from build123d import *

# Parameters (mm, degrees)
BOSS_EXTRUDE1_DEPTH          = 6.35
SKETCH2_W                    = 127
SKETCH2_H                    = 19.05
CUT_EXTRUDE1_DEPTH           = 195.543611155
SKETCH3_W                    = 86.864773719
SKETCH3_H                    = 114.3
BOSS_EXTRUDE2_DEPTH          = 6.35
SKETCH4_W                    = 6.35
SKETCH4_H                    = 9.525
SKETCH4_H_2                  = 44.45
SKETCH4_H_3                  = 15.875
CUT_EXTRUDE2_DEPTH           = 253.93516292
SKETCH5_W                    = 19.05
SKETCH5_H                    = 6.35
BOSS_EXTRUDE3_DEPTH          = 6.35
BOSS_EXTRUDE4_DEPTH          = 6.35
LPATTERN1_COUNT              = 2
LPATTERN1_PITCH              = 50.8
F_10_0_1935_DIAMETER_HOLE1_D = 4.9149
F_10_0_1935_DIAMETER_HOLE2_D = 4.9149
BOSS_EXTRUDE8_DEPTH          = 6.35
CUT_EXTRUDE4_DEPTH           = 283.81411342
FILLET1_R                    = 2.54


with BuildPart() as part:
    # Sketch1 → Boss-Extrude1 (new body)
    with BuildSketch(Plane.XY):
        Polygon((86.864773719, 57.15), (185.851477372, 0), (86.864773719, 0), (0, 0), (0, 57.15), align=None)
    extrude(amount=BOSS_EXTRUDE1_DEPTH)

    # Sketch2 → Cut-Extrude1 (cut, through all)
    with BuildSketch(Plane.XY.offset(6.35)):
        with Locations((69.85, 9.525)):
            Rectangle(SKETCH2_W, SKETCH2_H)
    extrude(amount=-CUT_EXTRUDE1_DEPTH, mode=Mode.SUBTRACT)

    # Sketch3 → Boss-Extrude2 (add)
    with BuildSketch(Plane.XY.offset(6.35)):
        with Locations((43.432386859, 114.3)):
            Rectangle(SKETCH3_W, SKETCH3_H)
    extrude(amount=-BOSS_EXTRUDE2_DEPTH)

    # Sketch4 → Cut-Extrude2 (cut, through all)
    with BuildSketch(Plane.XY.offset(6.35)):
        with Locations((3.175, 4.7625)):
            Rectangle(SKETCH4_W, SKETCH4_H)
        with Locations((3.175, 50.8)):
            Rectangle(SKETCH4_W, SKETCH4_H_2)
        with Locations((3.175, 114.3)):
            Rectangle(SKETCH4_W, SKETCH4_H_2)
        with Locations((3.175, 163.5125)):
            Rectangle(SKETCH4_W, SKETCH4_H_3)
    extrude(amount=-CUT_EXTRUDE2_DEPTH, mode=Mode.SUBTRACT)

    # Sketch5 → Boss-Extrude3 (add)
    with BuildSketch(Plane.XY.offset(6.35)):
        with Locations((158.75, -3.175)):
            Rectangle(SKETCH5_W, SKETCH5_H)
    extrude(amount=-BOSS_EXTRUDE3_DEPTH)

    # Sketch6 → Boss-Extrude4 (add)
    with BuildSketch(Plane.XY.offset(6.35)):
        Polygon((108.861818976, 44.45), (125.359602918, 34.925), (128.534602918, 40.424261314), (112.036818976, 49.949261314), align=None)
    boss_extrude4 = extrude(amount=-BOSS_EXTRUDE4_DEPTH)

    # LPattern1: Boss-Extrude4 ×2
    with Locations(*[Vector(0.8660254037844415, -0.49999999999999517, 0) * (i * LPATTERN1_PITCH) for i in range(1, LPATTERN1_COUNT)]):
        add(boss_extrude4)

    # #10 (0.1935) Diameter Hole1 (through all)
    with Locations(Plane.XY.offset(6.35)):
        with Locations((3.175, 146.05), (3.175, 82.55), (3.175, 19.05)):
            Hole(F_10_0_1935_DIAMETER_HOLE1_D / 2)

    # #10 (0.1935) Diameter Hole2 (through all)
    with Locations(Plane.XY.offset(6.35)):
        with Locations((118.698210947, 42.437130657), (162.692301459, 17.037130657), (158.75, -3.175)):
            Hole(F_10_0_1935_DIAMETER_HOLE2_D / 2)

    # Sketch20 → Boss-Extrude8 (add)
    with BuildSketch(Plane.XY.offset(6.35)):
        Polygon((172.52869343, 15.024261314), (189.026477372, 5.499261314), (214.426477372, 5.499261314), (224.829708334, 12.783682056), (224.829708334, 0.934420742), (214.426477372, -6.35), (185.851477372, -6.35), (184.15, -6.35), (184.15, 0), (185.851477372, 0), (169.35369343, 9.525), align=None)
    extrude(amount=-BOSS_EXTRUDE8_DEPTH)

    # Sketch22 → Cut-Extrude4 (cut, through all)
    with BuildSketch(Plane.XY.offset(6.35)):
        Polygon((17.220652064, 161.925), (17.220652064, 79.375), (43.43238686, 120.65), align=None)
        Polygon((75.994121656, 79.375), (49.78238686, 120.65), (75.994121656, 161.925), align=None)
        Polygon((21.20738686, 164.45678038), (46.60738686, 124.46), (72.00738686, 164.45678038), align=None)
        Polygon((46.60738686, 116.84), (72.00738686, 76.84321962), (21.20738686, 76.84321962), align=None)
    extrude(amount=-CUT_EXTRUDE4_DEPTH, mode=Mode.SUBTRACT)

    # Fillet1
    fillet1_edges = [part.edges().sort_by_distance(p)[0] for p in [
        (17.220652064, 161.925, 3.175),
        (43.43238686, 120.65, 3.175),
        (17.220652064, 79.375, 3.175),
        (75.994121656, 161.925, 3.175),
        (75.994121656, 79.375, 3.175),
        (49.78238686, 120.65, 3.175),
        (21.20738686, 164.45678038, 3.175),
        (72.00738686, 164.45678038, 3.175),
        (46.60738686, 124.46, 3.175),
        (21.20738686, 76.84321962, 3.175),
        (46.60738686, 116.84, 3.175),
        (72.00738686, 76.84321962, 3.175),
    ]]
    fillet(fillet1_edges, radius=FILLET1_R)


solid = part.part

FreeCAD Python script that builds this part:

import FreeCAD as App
import Part
import Sketcher
Q = App.Units.Quantity


def edges_at(feature, points):
    """Names of the edges that pass closest to the given points."""
    edges = feature.Shape.Edges
    near = lambda p: min(range(len(edges)), key=lambda i: edges[i].distToShape(Part.Vertex(*p))[0])
    return sorted({f"Edge{near(p) + 1}" for p in points})


def add_polygon(sketch, points):
    """Adds a closed chain of lines whose ends are joined by coincident constraints."""
    first, n = sketch.GeometryCount, len(points)
    for a, b in zip(points, points[1:] + points[:1]):
        sketch.addGeometry(Part.LineSegment(App.Vector(*a, 0), App.Vector(*b, 0)), False)
    for i in range(n):
        sketch.addConstraint(Sketcher.Constraint("Coincident", first + i, 2, first + (i + 1) % n, 1))

doc = App.newDocument("Part")
params = doc.addObject("Spreadsheet::Sheet", "Params")
for row, (alias, value) in enumerate([
    ("sketch1_length", "4.5 in"),
    ("pad1_length", "0.25 in"),
    ("sketch2_width", "5 in"),
    ("sketch2_height", "0.75 in"),
    ("sketch3_height", "4.5 in"),
    ("pad2_length", "0.25 in"),
    ("sketch4_width", "0.25 in"),
    ("sketch4_height", "1.75 in"),
    ("sketch4_height2", "0.375 in"),
    ("sketch4_height3", "0.625 in"),
    ("sketch5_width", "0.75 in"),
    ("sketch5_height", "0.25 in"),
    ("pad3_length", "0.25 in"),
    ("sketch6_length", "0.75 in"),
    ("sketch6_length2", "0.25 in"),
    ("pad4_length", "0.25 in"),
    ("linearpattern_pitch", "2 in"),
    ("hole_diameter", "0.1935 in"),
    ("hole2_diameter", "0.1935 in"),
    ("sketch9_width", "1 in"),
    ("sketch9_length", "0.5 in"),
    ("sketch9_height", "0.25 in"),
    ("sketch9_length2", "0.75 in"),
    ("sketch9_length3", "0.25 in"),
    ("pad5_length", "0.25 in"),
    ("sketch10_width", "2 in"),
    ("sketch10_height", "3.25 in"),
    ("fillet_radius", "0.1 in"),
], start=1):
    params.set(f"A{row}", alias)
    params.set(f"B{row}", "=" + value)
    params.setAlias(f"B{row}", alias)

body = doc.addObject("PartDesign::Body", "Body")

# Sketch on XY plane
sketch1 = doc.addObject("Sketcher::SketchObject", "Sketch")
body.addObject(sketch1)
sketch1.AttachmentSupport = (doc.XY_Plane, [""])
sketch1.MapMode = "FlatFace"
add_polygon(sketch1, [(186, 0), (87, 57), (0, 57), (0, 0)])  # lines 0-3
sketch1.addConstraint(Sketcher.Constraint("Horizontal", 1))
sketch1.addConstraint(Sketcher.Constraint("Vertical", 2))
sketch1.addConstraint(Sketcher.Constraint("Horizontal", 3))
sketch1.addConstraint(Sketcher.Constraint("Coincident", 2, 2, -1, 1))
sketch1.addConstraint(Sketcher.Constraint("Angle", 0, Q("150 deg")))
sketch1.addConstraint(Sketcher.Constraint("Distance", 0, Q("4.5 in")))
sketch1.addConstraint(Sketcher.Constraint("DistanceX", 1, 2, 1, 1, 86.864774))
sketch1.setExpression("Constraints[9]", "Params.sketch1_length")
pad1 = doc.addObject("PartDesign::Pad", "Pad")
body.addObject(pad1)
pad1.Profile = sketch1
pad1.setExpression("Length", "Params.pad1_length")

# Sketch on XY plane
sketch2 = doc.addObject("Sketcher::SketchObject", "Sketch001")
body.addObject(sketch2)
sketch2.AttachmentSupport = (doc.XY_Plane, [""])
sketch2.MapMode = "FlatFace"
sketch2.AttachmentOffset = App.Placement(App.Vector(0, 0, 0.25 * 25.4), App.Rotation())
add_polygon(sketch2, [(6, 19), (6, 0), (133, 0), (133, 19)])  # lines 0-3
sketch2.addConstraint(Sketcher.Constraint("Vertical", 0))
sketch2.addConstraint(Sketcher.Constraint("Horizontal", 1))
sketch2.addConstraint(Sketcher.Constraint("Vertical", 2))
sketch2.addConstraint(Sketcher.Constraint("Horizontal", 3))
sketch2.addConstraint(Sketcher.Constraint("PointOnObject", 0, 2, -1))
sketch2.addConstraint(Sketcher.Constraint("DistanceX", 1, 1, 1, 2, Q("5 in")))
sketch2.addConstraint(Sketcher.Constraint("DistanceY", 0, 2, 0, 1, Q("0.75 in")))
sketch2.addConstraint(Sketcher.Constraint("DistanceX", -1, 1, 0, 2, Q("0.25 in")))
sketch2.setExpression("Constraints[9]", "Params.sketch2_width")
sketch2.setExpression("Constraints[10]", "Params.sketch2_height")
pocket1 = doc.addObject("PartDesign::Pocket", "Pocket")
body.addObject(pocket1)
pocket1.Profile = sketch2
pocket1.Type = "ThroughAll"

# Sketch on XY plane
sketch3 = doc.addObject("Sketcher::SketchObject", "Sketch002")
body.addObject(sketch3)
sketch3.AttachmentSupport = (doc.XY_Plane, [""])
sketch3.MapMode = "FlatFace"
sketch3.AttachmentOffset = App.Placement(App.Vector(0, 0, 0.25 * 25.4), App.Rotation())
add_polygon(sketch3, [(0, 171), (0, 57), (87, 57), (87, 171)])  # lines 0-3
sketch3.addConstraint(Sketcher.Constraint("Vertical", 0))
sketch3.addConstraint(Sketcher.Constraint("Horizontal", 1))
sketch3.addConstraint(Sketcher.Constraint("Vertical", 2))
sketch3.addConstraint(Sketcher.Constraint("Horizontal", 3))
sketch3.addConstraint(Sketcher.Constraint("PointOnObject", 0, 2, -2))
sketch3.addConstraint(Sketcher.Constraint("DistanceY", 0, 2, 0, 1, Q("4.5 in")))
sketch3.addConstraint(Sketcher.Constraint("DistanceY", -1, 1, 0, 2, Q("2.25 in")))
sketch3.addConstraint(Sketcher.Constraint("DistanceX", 1, 1, 1, 2, 86.864774))
sketch3.setExpression("Constraints[9]", "Params.sketch3_height")
pad2 = doc.addObject("PartDesign::Pad", "Pad001")
body.addObject(pad2)
pad2.Profile = sketch3
pad2.setExpression("Length", "Params.pad2_length")
pad2.Reversed = True

# Sketch on XY plane
sketch4 = doc.addObject("Sketcher::SketchObject", "Sketch003")
body.addObject(sketch4)
sketch4.AttachmentSupport = (doc.XY_Plane, [""])
sketch4.MapMode = "FlatFace"
sketch4.AttachmentOffset = App.Placement(App.Vector(0, 0, 0.25 * 25.4), App.Rotation())
add_polygon(sketch4, [(0, 10), (0, 0), (6, 0), (6, 10)])  # lines 0-3
add_polygon(sketch4, [(0, 73), (0, 29), (6, 29), (6, 73)])  # lines 4-7
add_polygon(sketch4, [(0, 137), (0, 92), (6, 92), (6, 137)])  # lines 8-11
add_polygon(sketch4, [(0, 171), (0, 156), (6, 156), (6, 171)])  # lines 12-15
sketch4.addConstraint(Sketcher.Constraint("Vertical", 0))
sketch4.addConstraint(Sketcher.Constraint("Horizontal", 1))
sketch4.addConstraint(Sketcher.Constraint("Vertical", 2))
sketch4.addConstraint(Sketcher.Constraint("Horizontal", 3))
sketch4.addConstraint(Sketcher.Constraint("Vertical", 4))
sketch4.addConstraint(Sketcher.Constraint("Horizontal", 5))
sketch4.addConstraint(Sketcher.Constraint("Vertical", 6))
sketch4.addConstraint(Sketcher.Constraint("Horizontal", 7))
sketch4.addConstraint(Sketcher.Constraint("Vertical", 8))
sketch4.addConstraint(Sketcher.Constraint("Horizontal", 9))
sketch4.addConstraint(Sketcher.Constraint("Vertical", 10))
sketch4.addConstraint(Sketcher.Constraint("Horizontal", 11))
sketch4.addConstraint(Sketcher.Constraint("Vertical", 12))
sketch4.addConstraint(Sketcher.Constraint("Horizontal", 13))
sketch4.addConstraint(Sketcher.Constraint("Vertical", 14))
sketch4.addConstraint(Sketcher.Constraint("Horizontal", 15))
sketch4.addConstraint(Sketcher.Constraint("Coincident", 0, 2, -1, 1))
sketch4.addConstraint(Sketcher.Constraint("PointOnObject", 4, 2, -2))
sketch4.addConstraint(Sketcher.Constraint("PointOnObject", 8, 2, -2))
sketch4.addConstraint(Sketcher.Constraint("PointOnObject", 12, 2, -2))
sketch4.addConstraint(Sketcher.Constraint("Vertical", 2, 2, 5, 2))
sketch4.addConstraint(Sketcher.Constraint("Vertical", 6, 2, 9, 2))
sketch4.addConstraint(Sketcher.Constraint("Vertical", 10, 2, 13, 2))
sketch4.addConstraint(Sketcher.Constraint("Equal", 6, 8))
sketch4.addConstraint(Sketcher.Constraint("DistanceX", 1, 1, 1, 2, Q("0.25 in")))
sketch4.addConstraint(Sketcher.Constraint("DistanceY", 4, 2, 4, 1, Q("1.75 in")))
sketch4.addConstraint(Sketcher.Constraint("DistanceY", 2, 2, 6, 2, Q("2.5 in")))
sketch4.addConstraint(Sketcher.Constraint("DistanceY", 4, 2, 8, 2, Q("2.5 in")))
sketch4.addConstraint(Sketcher.Constraint("DistanceY", 8, 2, 12, 2, Q("2.5 in")))
sketch4.addConstraint(Sketcher.Constraint("DistanceY", 0, 2, 0, 1, Q("0.375 in")))
sketch4.addConstraint(Sketcher.Constraint("DistanceY", 12, 2, 12, 1, Q("0.625 in")))
sketch4.setExpression("Constraints[40]", "Params.sketch4_width")
sketch4.setExpression("Constraints[41]", "Params.sketch4_height")
sketch4.setExpression("Constraints[45]", "Params.sketch4_height2")
sketch4.setExpression("Constraints[46]", "Params.sketch4_height3")
pocket2 = doc.addObject("PartDesign::Pocket", "Pocket001")
body.addObject(pocket2)
pocket2.Profile = sketch4
pocket2.Type = "ThroughAll"

# Sketch on XY plane
sketch5 = doc.addObject("Sketcher::SketchObject", "Sketch004")
body.addObject(sketch5)
sketch5.AttachmentSupport = (doc.XY_Plane, [""])
sketch5.MapMode = "FlatFace"
sketch5.AttachmentOffset = App.Placement(App.Vector(0, 0, 0.25 * 25.4), App.Rotation())
add_polygon(sketch5, [(149, 0), (149, -6), (168, -6), (168, 0)])  # lines 0-3
sketch5.addConstraint(Sketcher.Constraint("Vertical", 0))
sketch5.addConstraint(Sketcher.Constraint("Horizontal", 1))
sketch5.addConstraint(Sketcher.Constraint("Vertical", 2))
sketch5.addConstraint(Sketcher.Constraint("Horizontal", 3))
sketch5.addConstraint(Sketcher.Constraint("PointOnObject", 2, 2, -1))
sketch5.addConstraint(Sketcher.Constraint("DistanceX", 1, 1, 1, 2, Q("0.75 in")))
sketch5.addConstraint(Sketcher.Constraint("DistanceY", 0, 2, 0, 1, Q("0.25 in")))
sketch5.addConstraint(Sketcher.Constraint("DistanceX", -1, 1, 0, 2, Q("5.875 in")))
sketch5.setExpression("Constraints[9]", "Params.sketch5_width")
sketch5.setExpression("Constraints[10]", "Params.sketch5_height")
pad3 = doc.addObject("PartDesign::Pad", "Pad002")
body.addObject(pad3)
pad3.Profile = sketch5
pad3.setExpression("Length", "Params.pad3_length")
pad3.Reversed = True

# Sketch on XY plane
sketch6 = doc.addObject("Sketcher::SketchObject", "Sketch005")
body.addObject(sketch6)
sketch6.AttachmentSupport = (doc.XY_Plane, [""])
sketch6.MapMode = "FlatFace"
sketch6.AttachmentOffset = App.Placement(App.Vector(0, 0, 0.25 * 25.4), App.Rotation())
add_polygon(sketch6, [(109, 44), (125, 35), (129, 40), (112, 50)])  # lines 0-3
sketch6.addConstraint(Sketcher.Constraint("Perpendicular", 0, 1))
sketch6.addConstraint(Sketcher.Constraint("Perpendicular", 1, 2))
sketch6.addConstraint(Sketcher.Constraint("Perpendicular", 2, 3))
sketch6.addConstraint(Sketcher.Constraint("Angle", 0, Q("-30 deg")))
sketch6.addConstraint(Sketcher.Constraint("Distance", 0, Q("0.75 in")))
sketch6.addConstraint(Sketcher.Constraint("Distance", 1, Q("0.25 in")))
sketch6.addConstraint(Sketcher.Constraint("DistanceY", -1, 1, 3, 2, Q("1.75 in")))
sketch6.addConstraint(Sketcher.Constraint("DistanceX", -1, 1, 2, 2, 112.036819))
sketch6.setExpression("Constraints[8]", "Params.sketch6_length")
sketch6.setExpression("Constraints[9]", "Params.sketch6_length2")
pad4 = doc.addObject("PartDesign::Pad", "Pad003")
body.addObject(pad4)
pad4.Profile = sketch6
pad4.setExpression("Length", "Params.pad4_length")
pad4.Reversed = True
doc.recompute()

datumline = doc.addObject("PartDesign::Line", "DatumLine")
body.addObject(datumline)
datumline.Placement = App.Placement(App.Vector(0, 0, 0), App.Rotation(App.Vector(0, 0, 1), App.Vector(0.866025404, -0.5, 0)))
linearpattern = doc.addObject("PartDesign::LinearPattern", "LinearPattern")
body.addObject(linearpattern)
linearpattern.Originals = [pad4]
linearpattern.Direction = (datumline, [""])
linearpattern.Mode = "offset"
linearpattern.setExpression("Offset", "Params.linearpattern_pitch")
linearpattern.Occurrences = 2
body.Tip = linearpattern

# Sketch on XY plane
sketch7 = doc.addObject("Sketcher::SketchObject", "Sketch006")
body.addObject(sketch7)
sketch7.AttachmentSupport = (doc.XY_Plane, [""])
sketch7.MapMode = "FlatFace"
sketch7.AttachmentOffset = App.Placement(App.Vector(0, 0, 0.25 * 25.4), App.Rotation())
sketch7.addGeometry(Part.Circle(App.Vector(3.2, 146.1, 0), App.Vector(0, 0, 1), 2.5), False)
sketch7.addGeometry(Part.Circle(App.Vector(3.2, 82.5, 0), App.Vector(0, 0, 1), 2.5), False)
sketch7.addGeometry(Part.Circle(App.Vector(3.2, 19.1, 0), App.Vector(0, 0, 1), 2.5), False)
sketch7.addConstraint(Sketcher.Constraint("Equal", 0, 1))
sketch7.addConstraint(Sketcher.Constraint("Equal", 1, 2))
sketch7.addConstraint(Sketcher.Constraint("Vertical", 0, 3, 1, 3))
sketch7.addConstraint(Sketcher.Constraint("Vertical", 1, 3, 2, 3))
sketch7.addConstraint(Sketcher.Constraint("DistanceY", 2, 3, 0, 3, Q("5 in")))
sketch7.addConstraint(Sketcher.Constraint("Diameter", 0, Q("0.1935 in")))
sketch7.addConstraint(Sketcher.Constraint("DistanceY", 1, 3, 0, 3, Q("2.5 in")))
sketch7.addConstraint(Sketcher.Constraint("DistanceY", -1, 1, 0, 3, Q("5.75 in")))
sketch7.addConstraint(Sketcher.Constraint("DistanceX", -1, 1, 0, 3, Q("0.125 in")))
doc.recompute()
hole = doc.addObject("PartDesign::Hole", "Hole")
body.addObject(hole)
hole.Profile = sketch7
hole.ThreadType = "None"
hole.setExpression("Diameter", "Params.hole_diameter")
hole.DepthType = "ThroughAll"

# Sketch on XY plane
sketch8 = doc.addObject("Sketcher::SketchObject", "Sketch007")
body.addObject(sketch8)
sketch8.AttachmentSupport = (doc.XY_Plane, [""])
sketch8.MapMode = "FlatFace"
sketch8.AttachmentOffset = App.Placement(App.Vector(0, 0, 0.25 * 25.4), App.Rotation())
sketch8.addGeometry(Part.Circle(App.Vector(118.7, 42.4, 0), App.Vector(0, 0, 1), 2.5), False)
sketch8.addGeometry(Part.Circle(App.Vector(162.7, 17, 0), App.Vector(0, 0, 1), 2.5), False)
sketch8.addGeometry(Part.Circle(App.Vector(158.8, -3.2, 0), App.Vector(0, 0, 1), 2.5), False)
sketch8.addConstraint(Sketcher.Constraint("Equal", 0, 1))
sketch8.addConstraint(Sketcher.Constraint("Equal", 1, 2))
sketch8.addConstraint(Sketcher.Constraint("DistanceY", 1, 3, 0, 3, Q("1 in")))
sketch8.addConstraint(Sketcher.Constraint("Diameter", 0, Q("0.1935 in")))
sketch8.addConstraint(Sketcher.Constraint("DistanceX", -1, 1, 2, 3, Q("6.25 in")))
sketch8.addConstraint(Sketcher.Constraint("DistanceY", 2, 3, -1, 1, Q("0.125 in")))
sketch8.addConstraint(Sketcher.Constraint("DistanceX", -1, 1, 1, 3, 162.692301))
sketch8.addConstraint(Sketcher.Constraint("DistanceX", -1, 1, 0, 3, 118.698211))
sketch8.addConstraint(Sketcher.Constraint("DistanceY", -1, 1, 0, 3, 42.437131))
doc.recompute()
hole2 = doc.addObject("PartDesign::Hole", "Hole001")
body.addObject(hole2)
hole2.Profile = sketch8
hole2.ThreadType = "None"
hole2.setExpression("Diameter", "Params.hole2_diameter")
hole2.DepthType = "ThroughAll"

# Sketch on XY plane
sketch9 = doc.addObject("Sketcher::SketchObject", "Sketch008")
body.addObject(sketch9)
sketch9.AttachmentSupport = (doc.XY_Plane, [""])
sketch9.MapMode = "FlatFace"
sketch9.AttachmentOffset = App.Placement(App.Vector(0, 0, 0.25 * 25.4), App.Rotation())
add_polygon(sketch9, [(189, 5.5), (172.5, 15), (169.4, 9.5), (185.9, 0), (184.2, 0), (184.2, -6.3), (214.4, -6.3), (224.8, 0.9), (224.8, 12.8), (214.4, 5.5)])  # lines 0-9
sketch9.addConstraint(Sketcher.Constraint("Horizontal", 3))
sketch9.addConstraint(Sketcher.Constraint("Vertical", 4))
sketch9.addConstraint(Sketcher.Constraint("Horizontal", 5))
sketch9.addConstraint(Sketcher.Constraint("Vertical", 7))
sketch9.addConstraint(Sketcher.Constraint("Horizontal", 9))
sketch9.addConstraint(Sketcher.Constraint("PointOnObject", 2, 2, -1))
sketch9.addConstraint(Sketcher.Constraint("Perpendicular", 0, 1))
sketch9.addConstraint(Sketcher.Constraint("Perpendicular", 1, 2))
sketch9.addConstraint(Sketcher.Constraint("Parallel", 6, 8))
sketch9.addConstraint(Sketcher.Constraint("Vertical", 5, 2, 8, 2))
sketch9.addConstraint(Sketcher.Constraint("Equal", 0, 2))
sketch9.addConstraint(Sketcher.Constraint("DistanceX", 9, 2, 9, 1, Q("1 in")))
sketch9.addConstraint(Sketcher.Constraint("Angle", 0, Q("150 deg")))
sketch9.addConstraint(Sketcher.Constraint("Angle", 6, Q("35 deg")))
sketch9.addConstraint(Sketcher.Constraint("Distance", 6, Q("0.5 in")))
sketch9.addConstraint(Sketcher.Constraint("DistanceY", 4, 2, 4, 1, Q("0.25 in")))
sketch9.addConstraint(Sketcher.Constraint("Distance", 0, Q("0.75 in")))
sketch9.addConstraint(Sketcher.Constraint("Distance", 1, Q("0.25 in")))
sketch9.addConstraint(Sketcher.Constraint("DistanceX", -1, 1, 3, 2, Q("7.25 in")))
sketch9.addConstraint(Sketcher.Constraint("DistanceX", 3, 2, 3, 1, 1.701477))
sketch9.setExpression("Constraints[21]", "Params.sketch9_width")
sketch9.setExpression("Constraints[24]", "Params.sketch9_length")
sketch9.setExpression("Constraints[25]", "Params.sketch9_height")
sketch9.setExpression("Constraints[26]", "Params.sketch9_length2")
sketch9.setExpression("Constraints[27]", "Params.sketch9_length3")
pad5 = doc.addObject("PartDesign::Pad", "Pad004")
body.addObject(pad5)
pad5.Profile = sketch9
pad5.setExpression("Length", "Params.pad5_length")
pad5.Reversed = True

# Sketch on XY plane
sketch10 = doc.addObject("Sketcher::SketchObject", "Sketch009")
body.addObject(sketch10)
sketch10.AttachmentSupport = (doc.XY_Plane, [""])
sketch10.MapMode = "FlatFace"
sketch10.AttachmentOffset = App.Placement(App.Vector(0, 0, 0.25 * 25.4), App.Rotation())
add_polygon(sketch10, [(17, 162), (17, 79), (43, 121)])  # lines 0-2
add_polygon(sketch10, [(50, 121), (76, 79), (76, 162)])  # lines 3-5
add_polygon(sketch10, [(21, 164), (47, 124), (72, 164)])  # lines 6-8
add_polygon(sketch10, [(72, 77), (47, 117), (21, 77)])  # lines 9-11
sketch10.addConstraint(Sketcher.Constraint("Vertical", 0))
sketch10.addConstraint(Sketcher.Constraint("Vertical", 4))
sketch10.addConstraint(Sketcher.Constraint("Horizontal", 8))
sketch10.addConstraint(Sketcher.Constraint("Horizontal", 11))
sketch10.addConstraint(Sketcher.Constraint("Parallel", 2, 3))
sketch10.addConstraint(Sketcher.Constraint("Parallel", 1, 5))
sketch10.addConstraint(Sketcher.Constraint("Parallel", 3, 6))
sketch10.addConstraint(Sketcher.Constraint("Parallel", 5, 7))
sketch10.addConstraint(Sketcher.Constraint("Parallel", 6, 9))
sketch10.addConstraint(Sketcher.Constraint("Parallel", 7, 10))
sketch10.addConstraint(Sketcher.Constraint("Horizontal", 0, 2, 3, 2))
sketch10.addConstraint(Sketcher.Constraint("Horizontal", 2, 2, 4, 2))
sketch10.addConstraint(Sketcher.Constraint("Horizontal", 1, 2, 5, 2))
sketch10.addConstraint(Sketcher.Constraint("Vertical", 6, 2, 9, 2))
sketch10.addConstraint(Sketcher.Constraint("Vertical", 8, 2, 10, 2))
sketch10.addConstraint(Sketcher.Constraint("DistanceX", 8, 2, 8, 1, Q("2 in")))
sketch10.addConstraint(Sketcher.Constraint("DistanceY", 0, 2, 0, 1, Q("3.25 in")))
sketch10.addConstraint(Sketcher.Constraint("DistanceY", -1, 1, 6, 2, Q("4.9 in")))
sketch10.addConstraint(Sketcher.Constraint("DistanceY", -1, 1, 9, 2, Q("4.6 in")))
sketch10.addConstraint(Sketcher.Constraint("DistanceY", -1, 1, 1, 2, Q("4.75 in")))
sketch10.addConstraint(Sketcher.Constraint("DistanceX", 1, 2, 5, 2, Q("0.25 in")))
sketch10.addConstraint(Sketcher.Constraint("DistanceX", 1, 2, 6, 2, Q("0.125 in")))
sketch10.addConstraint(Sketcher.Constraint("Distance", 6, 47.380401))
sketch10.addConstraint(Sketcher.Constraint("DistanceX", -1, 1, 3, 2, 75.994122))
sketch10.setExpression("Constraints[27]", "Params.sketch10_width")
sketch10.setExpression("Constraints[28]", "Params.sketch10_height")
pocket3 = doc.addObject("PartDesign::Pocket", "Pocket002")
body.addObject(pocket3)
pocket3.Profile = sketch10
pocket3.Type = "ThroughAll"
doc.recompute()

fillet = doc.addObject("PartDesign::Fillet", "Fillet")
body.addObject(fillet)
fillet.Base = (pocket3, edges_at(pocket3, [
    (17.221, 161.925, 3.175),
    (43.432, 120.65, 3.175),
    (17.221, 79.375, 3.175),
    (75.994, 161.925, 3.175),
    (75.994, 79.375, 3.175),
    (49.782, 120.65, 3.175),
    (21.207, 164.457, 3.175),
    (72.007, 164.457, 3.175),
    (46.607, 124.46, 3.175),
    (21.207, 76.843, 3.175),
    (46.607, 116.84, 3.175),
    (72.007, 76.843, 3.175),
]))
fillet.setExpression("Radius", "Params.fillet_radius")

doc.recompute()
